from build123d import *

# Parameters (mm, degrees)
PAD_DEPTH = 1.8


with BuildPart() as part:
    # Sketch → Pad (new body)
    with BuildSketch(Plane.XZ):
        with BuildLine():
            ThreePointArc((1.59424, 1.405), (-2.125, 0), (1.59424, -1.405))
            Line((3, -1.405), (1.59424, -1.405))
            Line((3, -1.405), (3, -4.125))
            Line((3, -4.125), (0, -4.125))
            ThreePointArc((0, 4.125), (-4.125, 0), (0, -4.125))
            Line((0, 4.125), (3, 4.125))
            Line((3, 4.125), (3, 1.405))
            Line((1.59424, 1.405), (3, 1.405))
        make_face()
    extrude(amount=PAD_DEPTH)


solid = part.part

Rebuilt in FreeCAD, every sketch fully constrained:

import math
import FreeCAD as App
import Part
import Sketcher
from FreeCAD import Vector

doc = App.newDocument("Part")
body = doc.addObject("PartDesign::Body", "Body")

sketch1 = doc.addObject("Sketcher::SketchObject", "Sketch")
body.addObject(sketch1)
sketch1.AttachmentSupport = (doc.XZ_Plane, [""])
sketch1.MapMode = "FlatFace"
sketch1.addGeometry([
    Part.ArcOfCircle(Part.Circle(Vector(0, 0, 0), Vector(0, 0, 1), 2.1), math.radians(41), math.radians(319)),
    Part.LineSegment(Vector(1.6, 1.4, 0), Vector(3, 1.4, 0)),
    Part.LineSegment(Vector(3, 1.4, 0), Vector(3, 4.1, 0)),
    Part.LineSegment(Vector(3, 4.1, 0), Vector(0, 4.1, 0)),
    Part.ArcOfCircle(Part.Circle(Vector(0, 0, 0), Vector(0, 0, 1), 4.1), math.radians(90), math.radians(270)),
    Part.LineSegment(Vector(0, -4.1, 0), Vector(3, -4.1, 0)),
    Part.LineSegment(Vector(3, -4.1, 0), Vector(3, -1.4, 0)),
    Part.LineSegment(Vector(3, -1.4, 0), Vector(1.6, -1.4, 0)),
], False)
sketch1.addConstraint([
    Sketcher.Constraint("Coincident", 0, 1, 1, 1),
    Sketcher.Constraint("Coincident", 1, 2, 2, 1),
    Sketcher.Constraint("Coincident", 2, 2, 3, 1),
    Sketcher.Constraint("Tangent", 3, 2, 4, 1),
    Sketcher.Constraint("Tangent", 4, 2, 5, 1),
    Sketcher.Constraint("Coincident", 5, 2, 6, 1),
    Sketcher.Constraint("Coincident", 6, 2, 7, 1),
    Sketcher.Constraint("Coincident", 7, 2, 0, 2),
    Sketcher.Constraint("Horizontal", 1),
    Sketcher.Constraint("Vertical", 2),
    Sketcher.Constraint("Horizontal", 3),
    Sketcher.Constraint("Horizontal", 5),
    Sketcher.Constraint("Vertical", 6),
    Sketcher.Constraint("Horizontal", 7),
    Sketcher.Constraint("Coincident", 0, 3, -1, 1),
    Sketcher.Constraint("Coincident", 4, 3, -1, 1),
    Sketcher.Constraint("Symmetric", 1, 2, 6, 2, -1),
    Sketcher.Constraint("DistanceX", 3, 2, 3, 1, 3.0),
    Sketcher.Constraint("Radius", 0, 2.125),
    Sketcher.Constraint("Radius", 4, 4.125),
    Sketcher.Constraint("DistanceY", 2, 1, 2, 2, 2.72),
])
pad1 = doc.addObject("PartDesign::Pad", "Pad")
body.addObject(pad1)
pad1.Profile = sketch1
pad1.Length = 1.8

doc.recompute()
